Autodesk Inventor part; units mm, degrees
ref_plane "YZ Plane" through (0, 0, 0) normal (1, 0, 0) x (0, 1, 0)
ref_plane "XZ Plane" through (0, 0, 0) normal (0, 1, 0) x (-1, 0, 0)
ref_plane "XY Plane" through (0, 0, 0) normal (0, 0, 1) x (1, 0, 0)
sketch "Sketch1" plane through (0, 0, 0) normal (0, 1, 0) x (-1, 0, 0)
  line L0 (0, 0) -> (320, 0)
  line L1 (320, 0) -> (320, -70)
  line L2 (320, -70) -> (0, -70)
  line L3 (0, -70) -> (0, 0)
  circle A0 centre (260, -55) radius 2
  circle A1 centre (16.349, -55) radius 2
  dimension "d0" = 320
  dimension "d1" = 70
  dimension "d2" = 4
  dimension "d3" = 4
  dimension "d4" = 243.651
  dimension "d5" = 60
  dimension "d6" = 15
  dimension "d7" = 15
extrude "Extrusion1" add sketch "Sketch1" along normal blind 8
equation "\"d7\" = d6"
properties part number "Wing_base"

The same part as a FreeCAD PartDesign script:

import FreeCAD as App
import Part
import Sketcher

V = App.Vector
Q = App.Units.Quantity


def add_polygon(sketch, points):
    """Adds a closed chain of lines whose ends are joined by coincident constraints."""
    first, n = sketch.GeometryCount, len(points)
    for a, b in zip(points, points[1:] + points[:1]):
        sketch.addGeometry(Part.LineSegment(App.Vector(*a, 0), App.Vector(*b, 0)), False)
    for i in range(n):
        sketch.addConstraint(Sketcher.Constraint("Coincident", first + i, 2, first + (i + 1) % n, 1))

doc = App.newDocument("Part")
params = doc.addObject("Spreadsheet::Sheet", "Params")
for row, (alias, value) in enumerate([
    ("sketch1_diameter", "4 mm"),
    ("sketch1_width", "320 mm"),
    ("sketch1_height", "70 mm"),
    ("pad1_length", "8 mm"),
], start=1):
    params.set(f"A{row}", alias)
    params.set(f"B{row}", "=" + value)
    params.setAlias(f"B{row}", alias)

body = doc.addObject("PartDesign::Body", "Body")

# Sketch on XZ plane
sketch1 = doc.addObject("Sketcher::SketchObject", "Sketch")
body.addObject(sketch1)
sketch1.AttachmentSupport = (doc.XZ_Plane, [""])
sketch1.MapMode = "FlatFace"
add_polygon(sketch1, [(-320, 0), (0, 0), (0, -70), (-320, -70)])  # lines 0-3
sketch1.addGeometry(Part.Circle(V(-16.3, -55, 0), V(0, 0, 1), 2), False)  # 4
sketch1.addGeometry(Part.Circle(V(-260, -55, 0), V(0, 0, 1), 2), False)  # 5
sketch1.addConstraint([
    Sketcher.Constraint("Horizontal", 0),
    Sketcher.Constraint("Vertical", 1),
    Sketcher.Constraint("Horizontal", 2),
    Sketcher.Constraint("Vertical", 3),
    Sketcher.Constraint("Coincident", 0, 2, -1, 1),
    Sketcher.Constraint("Equal", 4, 5),
    Sketcher.Constraint("Horizontal", 4, 3, 5, 3),
    Sketcher.Constraint("Diameter", 4, Q("4 mm")),
    Sketcher.Constraint("DistanceX", 0, 1, 0, 2, Q("320 mm")),
    Sketcher.Constraint("DistanceY", 1, 2, 1, 1, Q("70 mm")),
    Sketcher.Constraint("DistanceY", 1, 2, 4, 3, Q("15 mm")),
    Sketcher.Constraint("DistanceX", 2, 2, 5, 3, Q("60 mm")),
    Sketcher.Constraint("DistanceX", 5, 3, 4, 3, Q("243.651 mm")),
])
sketch1.setExpression("Constraints[11]", "Params.sketch1_diameter")
sketch1.setExpression("Constraints[12]", "Params.sketch1_width")
sketch1.setExpression("Constraints[13]", "Params.sketch1_height")
pad1 = doc.addObject("PartDesign::Pad", "Pad")
body.addObject(pad1)
pad1.Profile = sketch1
pad1.setExpression("Length", "Params.pad1_length")
pad1.Reversed = True

doc.recompute()
